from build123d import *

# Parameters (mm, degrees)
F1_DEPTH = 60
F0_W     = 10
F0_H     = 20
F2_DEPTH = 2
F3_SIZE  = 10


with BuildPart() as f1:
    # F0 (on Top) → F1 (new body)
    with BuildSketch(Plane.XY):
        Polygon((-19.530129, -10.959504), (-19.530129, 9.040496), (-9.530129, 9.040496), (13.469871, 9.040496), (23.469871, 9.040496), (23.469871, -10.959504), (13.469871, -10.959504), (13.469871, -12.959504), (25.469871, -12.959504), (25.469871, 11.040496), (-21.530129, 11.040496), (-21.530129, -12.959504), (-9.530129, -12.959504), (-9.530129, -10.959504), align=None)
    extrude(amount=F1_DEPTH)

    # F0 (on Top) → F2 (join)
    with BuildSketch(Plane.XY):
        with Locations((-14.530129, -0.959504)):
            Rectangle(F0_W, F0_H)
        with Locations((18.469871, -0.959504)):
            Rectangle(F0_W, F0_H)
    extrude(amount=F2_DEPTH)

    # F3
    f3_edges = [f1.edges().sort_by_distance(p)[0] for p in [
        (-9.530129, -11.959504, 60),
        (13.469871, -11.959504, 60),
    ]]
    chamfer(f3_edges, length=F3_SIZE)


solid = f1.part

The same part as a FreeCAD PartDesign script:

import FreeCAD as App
import Part
import Sketcher


def edges_at(feature, points):
    """Names of the edges that pass closest to the given points."""
    edges = feature.Shape.Edges
    near = lambda p: min(range(len(edges)), key=lambda i: edges[i].distToShape(Part.Vertex(*p))[0])
    return sorted({f"Edge{near(p) + 1}" for p in points})


def add_polygon(sketch, points):
    """Adds a closed chain of lines whose ends are joined by coincident constraints."""
    first, n = sketch.GeometryCount, len(points)
    for a, b in zip(points, points[1:] + points[:1]):
        sketch.addGeometry(Part.LineSegment(App.Vector(*a, 0), App.Vector(*b, 0)), False)
    for i in range(n):
        sketch.addConstraint(Sketcher.Constraint("Coincident", first + i, 2, first + (i + 1) % n, 1))

doc = App.newDocument("Part")
params = doc.addObject("Spreadsheet::Sheet", "Params")
for row, (alias, value) in enumerate([
    ("sketch1_width", "43 mm"),
    ("sketch1_width2", "10 mm"),
    ("sketch1_width3", "12 mm"),
    ("sketch1_height", "20 mm"),
    ("sketch1_height2", "2 mm"),
    ("pad1_length", "60 mm"),
    ("sketch2_width", "10 mm"),
    ("sketch2_height", "20 mm"),
    ("pad2_length", "2 mm"),
    ("chamfer_size", "10 mm"),
], start=1):
    params.set(f"A{row}", alias)
    params.set(f"B{row}", "=" + value)
    params.setAlias(f"B{row}", alias)

body = doc.addObject("PartDesign::Body", "Body")

# Sketch on XY plane
sketch1 = body.newObject("Sketcher::SketchObject", "Sketch")
sketch1.AttachmentSupport = (doc.getObject("XY_Plane"), [""])
sketch1.MapMode = "FlatFace"
add_polygon(sketch1, [(-19.530129, -10.959504), (-19.530129, 9.040496), (23.469871, 9.040496), (23.469871, -10.959504), (13.469871, -10.959504), (13.469871, -12.959504), (25.469871, -12.959504), (25.469871, 11.040496), (-21.530129, 11.040496), (-21.530129, -12.959504), (-9.530129, -12.959504), (-9.530129, -10.959504)])  # lines 0-11
sketch1.addConstraint(Sketcher.Constraint("Vertical", 0))
sketch1.addConstraint(Sketcher.Constraint("Horizontal", 1))
sketch1.addConstraint(Sketcher.Constraint("Vertical", 2))
sketch1.addConstraint(Sketcher.Constraint("Horizontal", 3))
sketch1.addConstraint(Sketcher.Constraint("Vertical", 4))
sketch1.addConstraint(Sketcher.Constraint("Horizontal", 5))
sketch1.addConstraint(Sketcher.Constraint("Vertical", 6))
sketch1.addConstraint(Sketcher.Constraint("Horizontal", 7))
sketch1.addConstraint(Sketcher.Constraint("Vertical", 8))
sketch1.addConstraint(Sketcher.Constraint("Horizontal", 9))
sketch1.addConstraint(Sketcher.Constraint("Vertical", 10))
sketch1.addConstraint(Sketcher.Constraint("Horizontal", 11))
sketch1.addConstraint(Sketcher.Constraint("Horizontal", 5, 2, 8, 2))
sketch1.addConstraint(Sketcher.Constraint("Horizontal", 3, 2, 10, 2))
sketch1.addConstraint(Sketcher.Constraint("Equal", 5, 9))
sketch1.addConstraint(Sketcher.Constraint("Equal", 3, 11))
sketch1.addConstraint(Sketcher.Constraint("DistanceX", 1, 1, 1, 2, 43.0))
sketch1.addConstraint(Sketcher.Constraint("DistanceX", 3, 2, 3, 1, 10.0))
sketch1.addConstraint(Sketcher.Constraint("DistanceX", 5, 1, 5, 2, 12.0))
sketch1.addConstraint(Sketcher.Constraint("DistanceY", 0, 1, 0, 2, 20.0))
sketch1.addConstraint(Sketcher.Constraint("DistanceY", 4, 2, 4, 1, 2.0))
sketch1.addConstraint(Sketcher.Constraint("DistanceY", 6, 1, 6, 2, 24.0))
sketch1.addConstraint(Sketcher.Constraint("DistanceX", 0, 2, -1, 1, 19.530129))
sketch1.addConstraint(Sketcher.Constraint("DistanceY", -1, 1, 0, 2, 9.040496))
sketch1.setExpression("Constraints[28]", "Params.sketch1_width")
sketch1.setExpression("Constraints[29]", "Params.sketch1_width2")
sketch1.setExpression("Constraints[30]", "Params.sketch1_width3")
sketch1.setExpression("Constraints[31]", "Params.sketch1_height")
sketch1.setExpression("Constraints[32]", "Params.sketch1_height2")
pad1 = body.newObject("PartDesign::Pad", "Pad")
pad1.Profile = sketch1
pad1.setExpression("Length", "Params.pad1_length")

# Sketch on XY plane
sketch2 = body.newObject("Sketcher::SketchObject", "Sketch001")
sketch2.AttachmentSupport = (doc.getObject("XY_Plane"), [""])
sketch2.MapMode = "FlatFace"
add_polygon(sketch2, [(-19.530129, 9.040496), (-19.530129, -10.959504), (-9.530129, -10.959504), (-9.530129, 9.040496)])  # lines 0-3
add_polygon(sketch2, [(13.469871, 9.040496), (13.469871, -10.959504), (23.469871, -10.959504), (23.469871, 9.040496)])  # lines 4-7
sketch2.addConstraint(Sketcher.Constraint("Vertical", 0))
sketch2.addConstraint(Sketcher.Constraint("Horizontal", 1))
sketch2.addConstraint(Sketcher.Constraint("Vertical", 2))
sketch2.addConstraint(Sketcher.Constraint("Horizontal", 3))
sketch2.addConstraint(Sketcher.Constraint("Vertical", 4))
sketch2.addConstraint(Sketcher.Constraint("Horizontal", 5))
sketch2.addConstraint(Sketcher.Constraint("Vertical", 6))
sketch2.addConstraint(Sketcher.Constraint("Horizontal", 7))
sketch2.addConstraint(Sketcher.Constraint("Horizontal", 1, 2, 4, 2))
sketch2.addConstraint(Sketcher.Constraint("Horizontal", 3, 2, 6, 2))
sketch2.addConstraint(Sketcher.Constraint("Equal", 3, 5))
sketch2.addConstraint(Sketcher.Constraint("DistanceX", 1, 1, 1, 2, 10.0))
sketch2.addConstraint(Sketcher.Constraint("DistanceY", 0, 2, 0, 1, 20.0))
sketch2.addConstraint(Sketcher.Constraint("DistanceX", 1, 2, 4, 2, 23.0))
sketch2.addConstraint(Sketcher.Constraint("DistanceX", 0, 2, -1, 1, 19.530129))
sketch2.addConstraint(Sketcher.Constraint("DistanceY", 0, 2, -1, 1, 10.959504))
sketch2.setExpression("Constraints[19]", "Params.sketch2_width")
sketch2.setExpression("Constraints[20]", "Params.sketch2_height")
pad2 = body.newObject("PartDesign::Pad", "Pad001")
pad2.Profile = sketch2
pad2.setExpression("Length", "Params.pad2_length")
doc.recompute()

chamfer = body.newObject("PartDesign::Chamfer", "Chamfer")
chamfer.Base = (pad2, edges_at(pad2, [(-9.53, -11.96, 60), (13.47, -11.96, 60)]))
chamfer.setExpression("Size", "Params.chamfer_size")

doc.recompute()
